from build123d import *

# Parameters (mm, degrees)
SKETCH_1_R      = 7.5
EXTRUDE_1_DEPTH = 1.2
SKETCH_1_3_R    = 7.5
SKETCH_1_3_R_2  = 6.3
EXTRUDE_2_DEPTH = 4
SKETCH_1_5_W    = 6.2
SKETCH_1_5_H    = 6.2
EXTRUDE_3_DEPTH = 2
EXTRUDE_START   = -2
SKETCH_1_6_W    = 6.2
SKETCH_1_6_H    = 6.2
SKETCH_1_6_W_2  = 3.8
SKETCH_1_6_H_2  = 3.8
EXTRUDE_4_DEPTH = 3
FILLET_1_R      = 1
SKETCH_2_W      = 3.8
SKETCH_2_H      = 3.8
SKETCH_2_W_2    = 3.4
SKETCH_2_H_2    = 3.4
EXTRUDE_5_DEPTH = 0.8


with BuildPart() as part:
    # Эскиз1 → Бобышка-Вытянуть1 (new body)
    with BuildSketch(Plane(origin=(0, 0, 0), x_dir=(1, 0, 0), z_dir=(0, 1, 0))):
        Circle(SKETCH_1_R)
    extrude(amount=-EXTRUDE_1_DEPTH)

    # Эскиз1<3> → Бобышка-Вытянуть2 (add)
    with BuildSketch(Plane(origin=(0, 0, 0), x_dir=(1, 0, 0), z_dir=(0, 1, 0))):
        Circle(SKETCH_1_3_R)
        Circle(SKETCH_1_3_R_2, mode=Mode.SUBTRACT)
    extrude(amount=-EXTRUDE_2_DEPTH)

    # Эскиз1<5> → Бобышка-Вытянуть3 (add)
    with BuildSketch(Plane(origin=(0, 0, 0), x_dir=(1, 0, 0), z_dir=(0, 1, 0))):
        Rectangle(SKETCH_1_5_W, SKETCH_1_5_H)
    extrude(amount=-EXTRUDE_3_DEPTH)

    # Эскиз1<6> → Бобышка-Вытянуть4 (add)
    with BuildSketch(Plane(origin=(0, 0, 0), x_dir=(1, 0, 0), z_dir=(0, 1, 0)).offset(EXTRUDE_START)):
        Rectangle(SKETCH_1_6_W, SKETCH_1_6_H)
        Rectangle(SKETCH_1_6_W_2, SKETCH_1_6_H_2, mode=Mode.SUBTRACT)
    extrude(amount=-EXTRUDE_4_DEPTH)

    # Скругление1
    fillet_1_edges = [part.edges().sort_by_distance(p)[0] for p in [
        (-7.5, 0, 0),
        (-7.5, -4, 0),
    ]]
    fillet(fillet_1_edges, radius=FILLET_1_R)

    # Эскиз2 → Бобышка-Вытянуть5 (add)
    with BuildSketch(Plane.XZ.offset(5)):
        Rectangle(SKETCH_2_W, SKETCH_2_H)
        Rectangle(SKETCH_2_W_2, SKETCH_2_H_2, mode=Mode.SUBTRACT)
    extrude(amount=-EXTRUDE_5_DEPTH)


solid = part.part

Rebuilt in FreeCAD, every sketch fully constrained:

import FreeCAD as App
import Part
import Sketcher
from FreeCAD import Vector


def edges_at(feature, points):
    """Names of the edges that pass closest to the given points."""
    edges = feature.Shape.Edges
    near = lambda p: min(range(len(edges)), key=lambda i: edges[i].distToShape(Part.Vertex(*p))[0])
    return sorted({f"Edge{near(p) + 1}" for p in points})

doc = App.newDocument("Part")
body = doc.addObject("PartDesign::Body", "Body")

sketch1 = body.newObject("Sketcher::SketchObject", "Sketch")
sketch1.AttachmentSupport = (doc.getObject("XZ_Plane"), [""])
sketch1.MapMode = "FlatFace"
sketch1.addGeometry(Part.Circle(Vector(0, 0, 0), Vector(0, 0, 1), 7.5), False)
sketch1.addConstraint([
    Sketcher.Constraint("Coincident", 0, 3, -1, 1),
    Sketcher.Constraint("Diameter", 0, 15.0),
])
pad1 = body.newObject("PartDesign::Pad", "Pad")
pad1.Profile = sketch1
pad1.Length = 1.2

sketch2 = body.newObject("Sketcher::SketchObject", "Sketch001")
sketch2.AttachmentSupport = (doc.getObject("XZ_Plane"), [""])
sketch2.MapMode = "FlatFace"
sketch2.addGeometry([
    Part.Circle(Vector(0, 0, 0), Vector(0, 0, 1), 7.5),
    Part.Circle(Vector(0, 0, 0), Vector(0, 0, 1), 6.3),
], False)
sketch2.addConstraint([
    Sketcher.Constraint("Coincident", 0, 3, -1, 1),
    Sketcher.Constraint("Coincident", 1, 3, -1, 1),
    Sketcher.Constraint("Diameter", 0, 15.0),
    Sketcher.Constraint("Diameter", 1, 12.6),
])
pad2 = body.newObject("PartDesign::Pad", "Pad001")
pad2.Profile = sketch2
pad2.Length = 4

sketch3 = body.newObject("Sketcher::SketchObject", "Sketch002")
sketch3.AttachmentSupport = (doc.getObject("XZ_Plane"), [""])
sketch3.MapMode = "FlatFace"
sketch3.addGeometry([
    Part.LineSegment(Vector(-3.1, -3.1, 0), Vector(-3.1, 3.1, 0)),
    Part.LineSegment(Vector(-3.1, 3.1, 0), Vector(3.1, 3.1, 0)),
    Part.LineSegment(Vector(3.1, 3.1, 0), Vector(3.1, -3.1, 0)),
    Part.LineSegment(Vector(3.1, -3.1, 0), Vector(-3.1, -3.1, 0)),
], False)
sketch3.addConstraint([
    Sketcher.Constraint("Coincident", 0, 2, 1, 1),
    Sketcher.Constraint("Coincident", 1, 2, 2, 1),
    Sketcher.Constraint("Coincident", 2, 2, 3, 1),
    Sketcher.Constraint("Coincident", 3, 2, 0, 1),
    Sketcher.Constraint("Vertical", 0),
    Sketcher.Constraint("Horizontal", 1),
    Sketcher.Constraint("Vertical", 2),
    Sketcher.Constraint("Horizontal", 3),
    Sketcher.Constraint("Symmetric", 0, 2, 2, 2, -1, 1),
    Sketcher.Constraint("Equal", 3, 0),
    Sketcher.Constraint("DistanceX", 1, 1, 1, 2, 6.2),
])
pad3 = body.newObject("PartDesign::Pad", "Pad002")
pad3.Profile = sketch3
pad3.Length = 2

sketch4 = body.newObject("Sketcher::SketchObject", "Sketch003")
sketch4.AttachmentSupport = (doc.getObject("XZ_Plane"), [""])
sketch4.MapMode = "FlatFace"
sketch4.AttachmentOffset = App.Placement(Vector(0, 0, 2), App.Rotation())
sketch4.addGeometry([
    Part.LineSegment(Vector(-3.1, -3.1, 0), Vector(-3.1, 3.1, 0)),
    Part.LineSegment(Vector(-3.1, 3.1, 0), Vector(3.1, 3.1, 0)),
    Part.LineSegment(Vector(3.1, 3.1, 0), Vector(3.1, -3.1, 0)),
    Part.LineSegment(Vector(3.1, -3.1, 0), Vector(-3.1, -3.1, 0)),
    Part.LineSegment(Vector(1.9, 1.9, 0), Vector(-1.9, 1.9, 0)),
    Part.LineSegment(Vector(-1.9, 1.9, 0), Vector(-1.9, -1.9, 0)),
    Part.LineSegment(Vector(-1.9, -1.9, 0), Vector(1.9, -1.9, 0)),
    Part.LineSegment(Vector(1.9, -1.9, 0), Vector(1.9, 1.9, 0)),
], False)
sketch4.addConstraint([
    Sketcher.Constraint("Coincident", 0, 2, 1, 1),
    Sketcher.Constraint("Coincident", 1, 2, 2, 1),
    Sketcher.Constraint("Coincident", 2, 2, 3, 1),
    Sketcher.Constraint("Coincident", 3, 2, 0, 1),
    Sketcher.Constraint("Coincident", 4, 2, 5, 1),
    Sketcher.Constraint("Coincident", 5, 2, 6, 1),
    Sketcher.Constraint("Coincident", 6, 2, 7, 1),
    Sketcher.Constraint("Coincident", 7, 2, 4, 1),
    Sketcher.Constraint("Vertical", 0),
    Sketcher.Constraint("Horizontal", 1),
    Sketcher.Constraint("Vertical", 2),
    Sketcher.Constraint("Horizontal", 3),
    Sketcher.Constraint("Horizontal", 4),
    Sketcher.Constraint("Vertical", 5),
    Sketcher.Constraint("Horizontal", 6),
    Sketcher.Constraint("Vertical", 7),
    Sketcher.Constraint("Symmetric", 0, 2, 2, 2, -1, 1),
    Sketcher.Constraint("Symmetric", 4, 2, 6, 2, -1, 1),
    Sketcher.Constraint("Equal", 3, 0),
    Sketcher.Constraint("Equal", 6, 5),
    Sketcher.Constraint("DistanceX", 1, 1, 1, 2, 6.2),
    Sketcher.Constraint("DistanceX", 4, 2, 4, 1, 3.8),
])
pad4 = body.newObject("PartDesign::Pad", "Pad003")
pad4.Profile = sketch4
pad4.Length = 3
doc.recompute()

fillet = body.newObject("PartDesign::Fillet", "Fillet")
fillet.Base = (pad4, edges_at(pad4, [(-7.5, 0, 0), (-7.5, -4, 0)]))
fillet.Radius = 1

sketch5 = body.newObject("Sketcher::SketchObject", "Sketch004")
sketch5.AttachmentSupport = (doc.getObject("XZ_Plane"), [""])
sketch5.MapMode = "FlatFace"
sketch5.AttachmentOffset = App.Placement(Vector(0, 0, 5), App.Rotation())
sketch5.addGeometry([
    Part.LineSegment(Vector(-1.9, 1.9, 0), Vector(-1.9, -1.9, 0)),
    Part.LineSegment(Vector(-1.9, -1.9, 0), Vector(1.9, -1.9, 0)),
    Part.LineSegment(Vector(1.9, -1.9, 0), Vector(1.9, 1.9, 0)),
    Part.LineSegment(Vector(1.9, 1.9, 0), Vector(-1.9, 1.9, 0)),
    Part.LineSegment(Vector(1.7, -1.7, 0), Vector(-1.7, -1.7, 0)),
    Part.LineSegment(Vector(-1.7, -1.7, 0), Vector(-1.7, 1.7, 0)),
    Part.LineSegment(Vector(-1.7, 1.7, 0), Vector(1.7, 1.7, 0)),
    Part.LineSegment(Vector(1.7, 1.7, 0), Vector(1.7, -1.7, 0)),
], False)
sketch5.addConstraint([
    Sketcher.Constraint("Coincident", 0, 2, 1, 1),
    Sketcher.Constraint("Coincident", 1, 2, 2, 1),
    Sketcher.Constraint("Coincident", 2, 2, 3, 1),
    Sketcher.Constraint("Coincident", 3, 2, 0, 1),
    Sketcher.Constraint("Coincident", 4, 2, 5, 1),
    Sketcher.Constraint("Coincident", 5, 2, 6, 1),
    Sketcher.Constraint("Coincident", 6, 2, 7, 1),
    Sketcher.Constraint("Coincident", 7, 2, 4, 1),
    Sketcher.Constraint("Vertical", 0),
    Sketcher.Constraint("Horizontal", 1),
    Sketcher.Constraint("Vertical", 2),
    Sketcher.Constraint("Horizontal", 3),
    Sketcher.Constraint("Horizontal", 4),
    Sketcher.Constraint("Vertical", 5),
    Sketcher.Constraint("Horizontal", 6),
    Sketcher.Constraint("Vertical", 7),
    Sketcher.Constraint("Symmetric", 0, 2, 2, 2, -1, 1),
    Sketcher.Constraint("Symmetric", 4, 2, 6, 2, -1, 1),
    Sketcher.Constraint("Equal", 3, 0),
    Sketcher.Constraint("Equal", 6, 5),
    Sketcher.Constraint("DistanceX", 1, 1, 1, 2, 3.8),
    Sketcher.Constraint("DistanceX", 4, 2, 4, 1, 3.4),
])
pad5 = body.newObject("PartDesign::Pad", "Pad004")
pad5.Profile = sketch5
pad5.Length = 0.8
pad5.Reversed = True

doc.recompute()
